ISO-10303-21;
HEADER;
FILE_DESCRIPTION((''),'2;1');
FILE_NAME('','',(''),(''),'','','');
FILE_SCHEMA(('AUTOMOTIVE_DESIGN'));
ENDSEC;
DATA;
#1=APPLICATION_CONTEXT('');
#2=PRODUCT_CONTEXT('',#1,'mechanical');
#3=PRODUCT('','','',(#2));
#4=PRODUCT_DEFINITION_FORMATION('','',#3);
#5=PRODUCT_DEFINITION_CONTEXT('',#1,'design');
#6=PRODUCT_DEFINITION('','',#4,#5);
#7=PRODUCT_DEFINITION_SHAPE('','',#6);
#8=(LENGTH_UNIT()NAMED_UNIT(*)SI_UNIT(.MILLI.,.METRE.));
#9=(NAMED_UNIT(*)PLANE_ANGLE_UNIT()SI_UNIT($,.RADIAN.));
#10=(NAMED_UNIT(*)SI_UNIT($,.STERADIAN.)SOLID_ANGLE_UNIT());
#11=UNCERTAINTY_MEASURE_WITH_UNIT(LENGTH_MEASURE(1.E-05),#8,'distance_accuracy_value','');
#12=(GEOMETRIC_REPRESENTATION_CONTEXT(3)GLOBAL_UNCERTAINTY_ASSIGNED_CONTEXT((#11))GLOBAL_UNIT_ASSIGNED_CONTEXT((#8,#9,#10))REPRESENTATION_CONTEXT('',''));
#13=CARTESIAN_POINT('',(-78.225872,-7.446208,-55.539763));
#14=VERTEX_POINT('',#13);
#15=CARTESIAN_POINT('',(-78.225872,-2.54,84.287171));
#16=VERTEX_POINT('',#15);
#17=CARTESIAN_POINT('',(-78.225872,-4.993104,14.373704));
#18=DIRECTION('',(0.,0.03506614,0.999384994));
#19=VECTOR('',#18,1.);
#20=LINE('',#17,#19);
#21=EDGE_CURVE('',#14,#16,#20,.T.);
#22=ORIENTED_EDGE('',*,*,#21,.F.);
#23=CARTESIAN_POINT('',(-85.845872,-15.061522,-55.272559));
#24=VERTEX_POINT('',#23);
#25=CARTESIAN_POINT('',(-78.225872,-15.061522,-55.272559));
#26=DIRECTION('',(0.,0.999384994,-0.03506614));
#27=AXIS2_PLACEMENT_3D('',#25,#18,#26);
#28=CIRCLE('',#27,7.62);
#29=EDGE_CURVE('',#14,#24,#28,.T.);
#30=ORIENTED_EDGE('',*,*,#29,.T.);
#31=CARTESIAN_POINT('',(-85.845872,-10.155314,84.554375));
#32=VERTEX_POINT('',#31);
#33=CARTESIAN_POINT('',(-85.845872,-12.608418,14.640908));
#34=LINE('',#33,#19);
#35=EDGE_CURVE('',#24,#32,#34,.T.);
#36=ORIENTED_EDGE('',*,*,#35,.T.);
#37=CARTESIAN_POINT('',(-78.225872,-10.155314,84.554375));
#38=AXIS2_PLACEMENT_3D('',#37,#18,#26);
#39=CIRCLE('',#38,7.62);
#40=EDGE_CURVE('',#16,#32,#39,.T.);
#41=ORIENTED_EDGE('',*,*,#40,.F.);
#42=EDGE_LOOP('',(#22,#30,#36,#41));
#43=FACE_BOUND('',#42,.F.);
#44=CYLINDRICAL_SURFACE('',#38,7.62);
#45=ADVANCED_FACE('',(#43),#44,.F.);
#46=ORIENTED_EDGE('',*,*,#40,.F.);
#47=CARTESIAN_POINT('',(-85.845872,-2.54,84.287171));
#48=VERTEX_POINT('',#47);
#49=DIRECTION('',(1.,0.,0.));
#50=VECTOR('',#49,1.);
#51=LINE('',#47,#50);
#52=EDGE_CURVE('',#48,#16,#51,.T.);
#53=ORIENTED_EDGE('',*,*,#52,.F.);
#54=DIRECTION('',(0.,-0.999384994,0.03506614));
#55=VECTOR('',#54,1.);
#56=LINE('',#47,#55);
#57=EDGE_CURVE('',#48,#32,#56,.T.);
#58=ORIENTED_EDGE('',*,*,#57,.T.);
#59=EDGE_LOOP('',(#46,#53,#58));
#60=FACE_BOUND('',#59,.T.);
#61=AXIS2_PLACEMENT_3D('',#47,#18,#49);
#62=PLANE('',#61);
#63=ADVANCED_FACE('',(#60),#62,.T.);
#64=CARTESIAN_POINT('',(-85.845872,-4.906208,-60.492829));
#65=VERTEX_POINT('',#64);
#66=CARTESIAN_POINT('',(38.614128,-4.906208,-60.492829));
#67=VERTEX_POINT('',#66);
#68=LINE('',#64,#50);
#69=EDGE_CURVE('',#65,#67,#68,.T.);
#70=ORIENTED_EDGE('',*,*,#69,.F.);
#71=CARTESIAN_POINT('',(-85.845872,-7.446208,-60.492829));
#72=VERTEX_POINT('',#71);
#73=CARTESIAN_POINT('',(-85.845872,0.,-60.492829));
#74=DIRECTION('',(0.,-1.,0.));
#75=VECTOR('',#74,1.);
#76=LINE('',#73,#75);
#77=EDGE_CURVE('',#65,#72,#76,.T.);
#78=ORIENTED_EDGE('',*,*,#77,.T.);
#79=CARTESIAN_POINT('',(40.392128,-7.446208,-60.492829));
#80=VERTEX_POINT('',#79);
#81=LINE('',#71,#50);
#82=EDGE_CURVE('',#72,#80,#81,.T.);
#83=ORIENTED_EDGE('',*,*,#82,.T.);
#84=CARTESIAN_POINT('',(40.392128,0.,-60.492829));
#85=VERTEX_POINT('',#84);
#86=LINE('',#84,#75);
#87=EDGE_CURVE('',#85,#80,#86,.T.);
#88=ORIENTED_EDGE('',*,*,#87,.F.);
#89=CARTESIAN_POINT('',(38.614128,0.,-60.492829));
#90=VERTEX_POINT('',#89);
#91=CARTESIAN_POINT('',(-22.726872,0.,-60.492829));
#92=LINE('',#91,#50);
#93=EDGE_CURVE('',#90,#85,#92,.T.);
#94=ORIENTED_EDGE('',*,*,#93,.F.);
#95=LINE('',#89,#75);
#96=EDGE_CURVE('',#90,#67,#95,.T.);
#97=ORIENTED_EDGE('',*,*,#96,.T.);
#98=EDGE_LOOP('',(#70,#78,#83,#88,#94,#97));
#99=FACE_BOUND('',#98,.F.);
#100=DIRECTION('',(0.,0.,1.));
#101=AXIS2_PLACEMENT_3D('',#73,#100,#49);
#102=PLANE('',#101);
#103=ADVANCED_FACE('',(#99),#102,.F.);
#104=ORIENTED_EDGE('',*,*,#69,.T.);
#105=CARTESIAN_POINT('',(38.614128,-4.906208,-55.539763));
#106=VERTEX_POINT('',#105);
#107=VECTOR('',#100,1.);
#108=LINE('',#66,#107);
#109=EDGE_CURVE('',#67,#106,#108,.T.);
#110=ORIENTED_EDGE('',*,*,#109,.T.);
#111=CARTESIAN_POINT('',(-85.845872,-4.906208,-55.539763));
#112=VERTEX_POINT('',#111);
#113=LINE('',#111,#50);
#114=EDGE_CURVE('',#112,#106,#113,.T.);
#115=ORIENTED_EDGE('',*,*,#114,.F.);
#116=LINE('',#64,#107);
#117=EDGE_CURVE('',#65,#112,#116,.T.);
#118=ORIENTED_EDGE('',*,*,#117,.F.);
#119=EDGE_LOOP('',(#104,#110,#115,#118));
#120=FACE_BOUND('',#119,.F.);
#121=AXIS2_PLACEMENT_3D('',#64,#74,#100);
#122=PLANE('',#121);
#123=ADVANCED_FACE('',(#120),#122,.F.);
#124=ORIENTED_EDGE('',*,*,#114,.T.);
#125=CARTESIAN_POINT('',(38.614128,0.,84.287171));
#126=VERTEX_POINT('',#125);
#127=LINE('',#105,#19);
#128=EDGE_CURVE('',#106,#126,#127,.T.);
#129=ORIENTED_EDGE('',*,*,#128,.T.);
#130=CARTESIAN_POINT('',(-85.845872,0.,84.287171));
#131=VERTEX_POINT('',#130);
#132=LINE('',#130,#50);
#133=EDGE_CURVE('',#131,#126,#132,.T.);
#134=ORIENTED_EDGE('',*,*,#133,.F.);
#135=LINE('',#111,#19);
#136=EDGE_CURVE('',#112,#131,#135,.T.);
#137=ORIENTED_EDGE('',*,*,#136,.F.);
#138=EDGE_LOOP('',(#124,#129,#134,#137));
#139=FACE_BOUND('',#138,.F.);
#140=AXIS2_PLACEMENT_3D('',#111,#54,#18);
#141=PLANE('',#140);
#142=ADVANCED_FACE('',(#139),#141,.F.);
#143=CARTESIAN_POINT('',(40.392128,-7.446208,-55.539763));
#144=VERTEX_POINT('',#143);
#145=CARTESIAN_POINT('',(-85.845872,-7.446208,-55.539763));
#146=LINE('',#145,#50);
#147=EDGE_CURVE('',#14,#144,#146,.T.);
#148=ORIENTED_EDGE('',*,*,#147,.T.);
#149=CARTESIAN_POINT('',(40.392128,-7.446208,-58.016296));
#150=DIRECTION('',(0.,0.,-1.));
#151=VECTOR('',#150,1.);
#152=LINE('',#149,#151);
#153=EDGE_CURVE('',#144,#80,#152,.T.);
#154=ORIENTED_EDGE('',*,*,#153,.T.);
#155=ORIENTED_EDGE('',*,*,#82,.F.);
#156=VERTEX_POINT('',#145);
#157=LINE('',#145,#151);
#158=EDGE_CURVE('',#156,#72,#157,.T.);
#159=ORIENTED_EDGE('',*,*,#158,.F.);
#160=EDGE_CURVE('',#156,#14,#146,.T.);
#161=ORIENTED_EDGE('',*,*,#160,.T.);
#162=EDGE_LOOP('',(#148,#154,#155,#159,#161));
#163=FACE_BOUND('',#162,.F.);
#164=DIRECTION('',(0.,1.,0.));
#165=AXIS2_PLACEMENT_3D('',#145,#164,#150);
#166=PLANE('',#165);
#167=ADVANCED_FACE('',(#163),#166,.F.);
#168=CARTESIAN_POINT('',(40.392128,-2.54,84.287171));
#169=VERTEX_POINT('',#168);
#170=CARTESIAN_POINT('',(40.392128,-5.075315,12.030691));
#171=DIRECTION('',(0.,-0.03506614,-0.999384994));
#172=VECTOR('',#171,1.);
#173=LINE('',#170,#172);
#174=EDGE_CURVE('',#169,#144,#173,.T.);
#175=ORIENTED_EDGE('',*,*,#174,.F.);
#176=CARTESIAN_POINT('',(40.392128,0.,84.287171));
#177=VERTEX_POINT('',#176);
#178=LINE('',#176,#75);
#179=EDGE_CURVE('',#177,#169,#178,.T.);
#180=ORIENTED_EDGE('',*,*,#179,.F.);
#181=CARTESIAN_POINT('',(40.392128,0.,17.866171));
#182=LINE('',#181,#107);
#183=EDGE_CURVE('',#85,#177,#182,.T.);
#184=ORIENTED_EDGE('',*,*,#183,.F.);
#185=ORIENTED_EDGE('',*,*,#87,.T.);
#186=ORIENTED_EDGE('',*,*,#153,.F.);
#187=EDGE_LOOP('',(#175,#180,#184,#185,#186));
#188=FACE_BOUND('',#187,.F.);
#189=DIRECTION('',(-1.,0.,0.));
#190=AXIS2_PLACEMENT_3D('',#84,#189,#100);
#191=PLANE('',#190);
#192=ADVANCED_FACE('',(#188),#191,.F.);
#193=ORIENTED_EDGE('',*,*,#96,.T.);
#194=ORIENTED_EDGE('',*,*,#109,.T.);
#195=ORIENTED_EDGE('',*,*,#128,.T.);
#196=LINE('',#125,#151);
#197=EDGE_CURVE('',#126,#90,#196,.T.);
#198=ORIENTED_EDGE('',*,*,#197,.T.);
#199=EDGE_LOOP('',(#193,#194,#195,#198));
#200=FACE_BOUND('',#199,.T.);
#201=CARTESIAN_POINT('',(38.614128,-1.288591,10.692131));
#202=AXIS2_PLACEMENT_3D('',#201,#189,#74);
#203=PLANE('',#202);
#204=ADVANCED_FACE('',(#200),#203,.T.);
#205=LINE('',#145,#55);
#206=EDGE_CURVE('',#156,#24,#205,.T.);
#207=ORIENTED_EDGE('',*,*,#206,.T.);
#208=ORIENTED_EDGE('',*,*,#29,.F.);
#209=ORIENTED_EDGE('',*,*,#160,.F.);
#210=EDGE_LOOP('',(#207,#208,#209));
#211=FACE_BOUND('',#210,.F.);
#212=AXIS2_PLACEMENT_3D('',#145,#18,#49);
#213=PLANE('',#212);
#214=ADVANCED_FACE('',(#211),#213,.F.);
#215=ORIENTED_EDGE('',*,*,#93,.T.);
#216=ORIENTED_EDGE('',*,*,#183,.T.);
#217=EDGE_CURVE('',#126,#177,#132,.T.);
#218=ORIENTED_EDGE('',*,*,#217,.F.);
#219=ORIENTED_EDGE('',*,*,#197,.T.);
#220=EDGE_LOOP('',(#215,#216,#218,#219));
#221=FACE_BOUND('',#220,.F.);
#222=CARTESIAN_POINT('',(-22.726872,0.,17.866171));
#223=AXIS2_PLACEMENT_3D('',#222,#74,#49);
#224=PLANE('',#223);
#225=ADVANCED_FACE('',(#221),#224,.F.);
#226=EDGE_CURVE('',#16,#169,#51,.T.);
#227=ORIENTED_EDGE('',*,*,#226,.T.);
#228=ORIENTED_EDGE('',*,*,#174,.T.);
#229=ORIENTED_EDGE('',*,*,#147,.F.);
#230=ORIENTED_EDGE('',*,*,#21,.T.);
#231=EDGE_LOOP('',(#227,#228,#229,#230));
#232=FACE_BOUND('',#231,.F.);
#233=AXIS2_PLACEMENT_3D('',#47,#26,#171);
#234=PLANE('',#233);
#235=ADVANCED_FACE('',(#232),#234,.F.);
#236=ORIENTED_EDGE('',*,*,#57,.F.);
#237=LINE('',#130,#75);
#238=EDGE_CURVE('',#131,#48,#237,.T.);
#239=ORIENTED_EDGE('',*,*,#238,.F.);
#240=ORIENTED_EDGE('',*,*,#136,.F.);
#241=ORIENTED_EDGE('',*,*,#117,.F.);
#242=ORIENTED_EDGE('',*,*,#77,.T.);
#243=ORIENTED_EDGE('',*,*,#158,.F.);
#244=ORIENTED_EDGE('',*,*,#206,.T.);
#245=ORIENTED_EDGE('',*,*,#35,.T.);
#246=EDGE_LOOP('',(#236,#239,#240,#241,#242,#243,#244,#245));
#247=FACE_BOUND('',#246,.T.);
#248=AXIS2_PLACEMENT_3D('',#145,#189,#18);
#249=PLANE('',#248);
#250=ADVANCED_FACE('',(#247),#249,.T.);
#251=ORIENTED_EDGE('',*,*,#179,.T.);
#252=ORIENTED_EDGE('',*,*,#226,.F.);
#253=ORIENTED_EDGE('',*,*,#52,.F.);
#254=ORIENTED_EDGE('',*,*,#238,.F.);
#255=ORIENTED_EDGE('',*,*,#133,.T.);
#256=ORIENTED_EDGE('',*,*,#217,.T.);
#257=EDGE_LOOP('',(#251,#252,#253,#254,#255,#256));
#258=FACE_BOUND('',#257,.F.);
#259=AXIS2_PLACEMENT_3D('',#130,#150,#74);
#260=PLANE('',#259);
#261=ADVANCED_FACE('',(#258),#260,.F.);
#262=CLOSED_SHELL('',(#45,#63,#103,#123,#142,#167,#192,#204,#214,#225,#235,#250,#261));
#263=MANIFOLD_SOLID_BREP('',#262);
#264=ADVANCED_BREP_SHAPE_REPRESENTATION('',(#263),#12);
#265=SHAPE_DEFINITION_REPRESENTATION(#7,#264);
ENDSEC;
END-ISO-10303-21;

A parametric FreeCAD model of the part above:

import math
import FreeCAD as App
import Part
import Sketcher
from FreeCAD import Vector
Q = App.Units.Quantity


def add_polygon(sketch, points):
    """Adds a closed chain of lines whose ends are joined by coincident constraints."""
    first, n = sketch.GeometryCount, len(points)
    for a, b in zip(points, points[1:] + points[:1]):
        sketch.addGeometry(Part.LineSegment(App.Vector(*a, 0), App.Vector(*b, 0)), False)
    for i in range(n):
        sketch.addConstraint(Sketcher.Constraint("Coincident", first + i, 2, first + (i + 1) % n, 1))

doc = App.newDocument("Part")
body = doc.addObject("PartDesign::Body", "Body")

# Sketch on XZ plane
sketch1 = body.newObject("Sketcher::SketchObject", "Sketch")
sketch1.AttachmentSupport = (doc.getObject("XZ_Plane"), [""])
sketch1.MapMode = "FlatFace"
add_polygon(sketch1, [(-86, 96), (-86, -60), (40, -60), (40, 96)])  # lines 0-3
sketch1.addConstraint(Sketcher.Constraint("Vertical", 0))
sketch1.addConstraint(Sketcher.Constraint("Horizontal", 1))
sketch1.addConstraint(Sketcher.Constraint("Vertical", 2))
sketch1.addConstraint(Sketcher.Constraint("Horizontal", 3))
sketch1.addConstraint(Sketcher.Constraint("DistanceX", 1, 1, 1, 2, Q("4.97 in")))
sketch1.addConstraint(Sketcher.Constraint("DistanceY", 0, 2, 0, 1, Q("6.17 in")))
sketch1.addConstraint(Sketcher.Constraint("DistanceY", 0, 2, -1, 1, Q("60.492829 mm")))
sketch1.addConstraint(Sketcher.Constraint("DistanceX", 0, 2, -1, 1, Q("85.845872 mm")))
pad1 = body.newObject("PartDesign::Pad", "Pad")
pad1.Profile = sketch1
pad1.Length = Q("1 in")

# Sketch on YZ plane
sketch2 = body.newObject("Sketcher::SketchObject", "Sketch001")
sketch2.AttachmentSupport = (doc.getObject("YZ_Plane"), [""])
sketch2.MapMode = "FlatFace"
sketch2.AttachmentOffset = App.Placement(Vector(0, 0, -85.845872), App.Rotation())
add_polygon(sketch2, [(-4.9, -55.5), (0, 84.3), (0, -60.5), (-4.9, -60.5)])  # lines 0-3
sketch2.addConstraint(Sketcher.Constraint("Vertical", 1))
sketch2.addConstraint(Sketcher.Constraint("Horizontal", 2))
sketch2.addConstraint(Sketcher.Constraint("Vertical", 3))
sketch2.addConstraint(Sketcher.Constraint("PointOnObject", 0, 2, -2))
sketch2.addConstraint(Sketcher.Constraint("DistanceY", 1, 2, 1, 1, Q("5.7 in")))
sketch2.addConstraint(Sketcher.Constraint("DistanceX", 2, 2, 2, 1, Q("4.906208 mm")))
sketch2.addConstraint(Sketcher.Constraint("Distance", 0, Q("139.912982 mm")))
sketch2.addConstraint(Sketcher.Constraint("DistanceY", -1, 1, 0, 2, Q("84.287171 mm")))
pocket1 = body.newObject("PartDesign::Pocket", "Pocket")
pocket1.Profile = sketch2
pocket1.Length = Q("4.9 in")
pocket1.Reversed = True

# Sketch on YZ plane
sketch3 = body.newObject("Sketcher::SketchObject", "Sketch002")
sketch3.AttachmentSupport = (doc.getObject("YZ_Plane"), [""])
sketch3.MapMode = "FlatFace"
sketch3.AttachmentOffset = App.Placement(Vector(0, 0, -85.845872), App.Rotation())
add_polygon(sketch3, [(0, 84.3), (-2.5, 84.3), (-7.4, -55.5), (-7.4, -60.5), (-25.4, -60.5), (-25.4, 96.2), (0, 96.2)])  # lines 0-6
sketch3.addConstraint(Sketcher.Constraint("Horizontal", 0))
sketch3.addConstraint(Sketcher.Constraint("Vertical", 2))
sketch3.addConstraint(Sketcher.Constraint("Horizontal", 3))
sketch3.addConstraint(Sketcher.Constraint("Vertical", 4))
sketch3.addConstraint(Sketcher.Constraint("Horizontal", 5))
sketch3.addConstraint(Sketcher.Constraint("Vertical", 6))
sketch3.addConstraint(Sketcher.Constraint("PointOnObject", 5, 2, -2))
sketch3.addConstraint(Sketcher.Constraint("DistanceX", 5, 1, 5, 2, Q("1 in")))
sketch3.addConstraint(Sketcher.Constraint("DistanceX", 0, 2, 0, 1, Q("0.1 in")))
sketch3.addConstraint(Sketcher.Constraint("DistanceY", 4, 1, 4, 2, Q("6.17 in")))
sketch3.addConstraint(Sketcher.Constraint("DistanceY", 6, 2, 6, 1, Q("0.47 in")))
sketch3.addConstraint(Sketcher.Constraint("DistanceX", 3, 2, 3, 1, Q("17.953792 mm")))
sketch3.addConstraint(Sketcher.Constraint("Distance", 1, Q("139.912982 mm")))
sketch3.addConstraint(Sketcher.Constraint("DistanceY", -1, 1, 0, 2, Q("84.287171 mm")))
pocket2 = body.newObject("PartDesign::Pocket", "Pocket001")
pocket2.Profile = sketch3
pocket2.Length = Q("6 in")
pocket2.Reversed = True

# Sketch on an angled plane
sketch4 = body.newObject("Sketcher::SketchObject", "Sketch003")
sketch4.Placement = App.Placement(Vector(0, -5.490685, 0.192656), App.Rotation(Vector(1, 0, 0), Vector(0, 0.03506614, 0.999384994), Vector(0, -0.999384994, 0.03506614), "ZXY"))
add_polygon(sketch4, [(-86, 84), (-86, -56), (-78, -56), (-78, 84)])  # lines 0-3
sketch4.addConstraint(Sketcher.Constraint("Vertical", 0))
sketch4.addConstraint(Sketcher.Constraint("Horizontal", 1))
sketch4.addConstraint(Sketcher.Constraint("Vertical", 2))
sketch4.addConstraint(Sketcher.Constraint("Horizontal", 3))
sketch4.addConstraint(Sketcher.Constraint("DistanceX", 1, 1, 1, 2, Q("0.3 in")))
sketch4.addConstraint(Sketcher.Constraint("DistanceY", 0, 2, 0, 1, Q("139.912982 mm")))
sketch4.addConstraint(Sketcher.Constraint("DistanceX", 0, 2, -1, 1, Q("85.845872 mm")))
sketch4.addConstraint(Sketcher.Constraint("DistanceY", 0, 2, -1, 1, Q("55.766715 mm")))
pad2 = body.newObject("PartDesign::Pad", "Pad001")
pad2.Profile = sketch4
pad2.Length = Q("0.3 in")

# Sketch on an angled plane
sketch5 = body.newObject("Sketcher::SketchObject", "Sketch004")
sketch5.Placement = App.Placement(Vector(0, 2.950685, 84.094516), App.Rotation(Vector(1, 0, 0), Vector(0, 0.999384994, -0.03506614), Vector(0, 0.03506614, 0.999384994), "ZXY"))
sketch5.addGeometry(Part.LineSegment(Vector(-78, -13, 0), Vector(-78, -5, 0)), False)
sketch5.addGeometry(Part.ArcOfCircle(Part.Circle(Vector(-78, -13, 0), Vector(0, 0, 1), 8), math.radians(90), math.radians(180)), False)
sketch5.addGeometry(Part.LineSegment(Vector(-86, -13, 0), Vector(-78, -13, 0)), False)
sketch5.addConstraint(Sketcher.Constraint("Coincident", 0, 2, 1, 1))
sketch5.addConstraint(Sketcher.Constraint("Coincident", 1, 2, 2, 1))
sketch5.addConstraint(Sketcher.Constraint("Coincident", 2, 2, 0, 1))
sketch5.addConstraint(Sketcher.Constraint("Vertical", 0))
sketch5.addConstraint(Sketcher.Constraint("Horizontal", 2))
sketch5.addConstraint(Sketcher.Constraint("Coincident", 2, 2, 1, 3))
sketch5.addConstraint(Sketcher.Constraint("Radius", 1, Q("0.3 in")))
sketch5.addConstraint(Sketcher.Constraint("DistanceX", 1, 3, -1, 1, Q("78.225872 mm")))
sketch5.addConstraint(Sketcher.Constraint("DistanceY", 1, 3, -1, 1, Q("13.114064 mm")))
pocket3 = body.newObject("PartDesign::Pocket", "Pocket002")
pocket3.Profile = sketch5
pocket3.Length = Q("6 in")

doc.recompute()
